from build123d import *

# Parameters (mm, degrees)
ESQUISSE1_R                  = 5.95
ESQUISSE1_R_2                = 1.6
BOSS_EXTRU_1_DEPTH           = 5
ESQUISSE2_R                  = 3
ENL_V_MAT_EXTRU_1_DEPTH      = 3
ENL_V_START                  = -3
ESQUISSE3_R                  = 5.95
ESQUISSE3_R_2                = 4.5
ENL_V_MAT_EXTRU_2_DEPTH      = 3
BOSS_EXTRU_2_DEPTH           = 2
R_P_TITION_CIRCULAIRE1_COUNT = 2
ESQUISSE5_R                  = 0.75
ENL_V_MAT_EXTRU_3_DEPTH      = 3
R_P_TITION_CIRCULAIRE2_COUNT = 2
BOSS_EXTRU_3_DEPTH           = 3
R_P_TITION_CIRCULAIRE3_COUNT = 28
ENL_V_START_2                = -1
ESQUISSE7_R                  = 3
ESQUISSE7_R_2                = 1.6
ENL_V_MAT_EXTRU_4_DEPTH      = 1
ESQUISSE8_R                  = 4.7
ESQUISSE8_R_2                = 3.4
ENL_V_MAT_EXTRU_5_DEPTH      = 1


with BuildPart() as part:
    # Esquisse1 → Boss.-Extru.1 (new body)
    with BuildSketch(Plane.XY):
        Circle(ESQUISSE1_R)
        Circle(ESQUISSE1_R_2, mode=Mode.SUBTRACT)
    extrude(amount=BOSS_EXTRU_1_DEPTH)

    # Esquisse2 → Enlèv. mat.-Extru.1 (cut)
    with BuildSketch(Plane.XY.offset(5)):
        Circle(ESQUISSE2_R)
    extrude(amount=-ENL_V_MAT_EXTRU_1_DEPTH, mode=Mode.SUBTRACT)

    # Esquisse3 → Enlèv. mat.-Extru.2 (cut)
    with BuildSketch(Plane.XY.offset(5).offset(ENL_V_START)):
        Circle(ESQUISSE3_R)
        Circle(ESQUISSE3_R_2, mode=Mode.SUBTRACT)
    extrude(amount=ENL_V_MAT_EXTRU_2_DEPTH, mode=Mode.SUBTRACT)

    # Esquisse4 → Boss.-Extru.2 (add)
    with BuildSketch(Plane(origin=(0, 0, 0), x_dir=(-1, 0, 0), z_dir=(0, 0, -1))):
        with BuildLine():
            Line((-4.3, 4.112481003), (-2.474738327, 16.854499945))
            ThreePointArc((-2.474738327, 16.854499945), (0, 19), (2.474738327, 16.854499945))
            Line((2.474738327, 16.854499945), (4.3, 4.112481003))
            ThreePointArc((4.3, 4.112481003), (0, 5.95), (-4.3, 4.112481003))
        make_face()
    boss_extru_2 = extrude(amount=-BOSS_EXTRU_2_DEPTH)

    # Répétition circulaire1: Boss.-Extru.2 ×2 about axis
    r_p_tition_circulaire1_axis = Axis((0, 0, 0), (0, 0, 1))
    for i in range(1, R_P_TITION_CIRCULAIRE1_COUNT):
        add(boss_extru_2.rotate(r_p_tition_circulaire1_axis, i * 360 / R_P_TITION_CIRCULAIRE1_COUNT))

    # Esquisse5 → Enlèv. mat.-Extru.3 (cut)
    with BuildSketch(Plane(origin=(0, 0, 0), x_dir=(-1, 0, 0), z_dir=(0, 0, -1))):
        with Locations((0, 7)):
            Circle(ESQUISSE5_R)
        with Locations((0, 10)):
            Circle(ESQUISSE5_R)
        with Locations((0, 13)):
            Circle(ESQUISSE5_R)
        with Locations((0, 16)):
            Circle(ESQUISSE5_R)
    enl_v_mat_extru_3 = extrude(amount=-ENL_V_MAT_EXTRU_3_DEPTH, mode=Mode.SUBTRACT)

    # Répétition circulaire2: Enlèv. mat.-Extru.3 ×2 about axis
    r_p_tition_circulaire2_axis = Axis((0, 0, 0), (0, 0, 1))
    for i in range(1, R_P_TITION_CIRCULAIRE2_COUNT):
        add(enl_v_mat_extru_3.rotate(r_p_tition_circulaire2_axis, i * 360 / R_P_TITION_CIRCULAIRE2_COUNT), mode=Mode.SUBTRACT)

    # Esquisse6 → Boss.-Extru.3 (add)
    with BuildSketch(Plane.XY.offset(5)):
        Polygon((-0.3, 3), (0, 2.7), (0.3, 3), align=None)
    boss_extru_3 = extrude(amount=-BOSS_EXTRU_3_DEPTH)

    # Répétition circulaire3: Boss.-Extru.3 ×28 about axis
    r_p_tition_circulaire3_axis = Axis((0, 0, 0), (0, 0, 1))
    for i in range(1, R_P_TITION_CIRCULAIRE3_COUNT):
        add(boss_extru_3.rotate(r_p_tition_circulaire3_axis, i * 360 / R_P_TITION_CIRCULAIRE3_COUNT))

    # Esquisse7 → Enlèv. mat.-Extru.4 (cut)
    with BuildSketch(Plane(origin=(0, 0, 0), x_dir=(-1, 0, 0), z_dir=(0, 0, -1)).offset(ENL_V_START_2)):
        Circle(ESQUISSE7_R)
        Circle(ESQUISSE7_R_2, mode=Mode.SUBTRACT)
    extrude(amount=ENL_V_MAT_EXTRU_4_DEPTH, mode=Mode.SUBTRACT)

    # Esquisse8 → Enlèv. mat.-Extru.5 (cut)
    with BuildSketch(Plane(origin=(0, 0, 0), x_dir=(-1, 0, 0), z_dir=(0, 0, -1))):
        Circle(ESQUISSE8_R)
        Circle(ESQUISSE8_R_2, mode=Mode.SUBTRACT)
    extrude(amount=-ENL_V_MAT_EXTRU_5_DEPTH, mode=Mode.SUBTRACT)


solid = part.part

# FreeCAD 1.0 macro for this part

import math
import FreeCAD as App
import Part
import Sketcher

doc = App.newDocument("Part")
body = doc.addObject("PartDesign::Body", "Body")

# Sketch on XY plane
sketch1 = body.newObject("Sketcher::SketchObject", "Sketch")
sketch1.AttachmentSupport = (doc.getObject("XY_Plane"), [""])
sketch1.MapMode = "FlatFace"
sketch1.addGeometry(Part.Circle(App.Vector(0, 0, 0), App.Vector(0, 0, 1), 5.95), False)
sketch1.addGeometry(Part.Circle(App.Vector(0, 0, 0), App.Vector(0, 0, 1), 1.6), False)
sketch1.addConstraint(Sketcher.Constraint("Coincident", 0, 3, -1, 1))
sketch1.addConstraint(Sketcher.Constraint("Coincident", 1, 3, -1, 1))
sketch1.addConstraint(Sketcher.Constraint("Diameter", 0, 11.9))
sketch1.addConstraint(Sketcher.Constraint("Diameter", 1, 3.2))
pad1 = body.newObject("PartDesign::Pad", "Pad")
pad1.Profile = sketch1
pad1.Length = 5

# Sketch on XY plane
sketch2 = body.newObject("Sketcher::SketchObject", "Sketch001")
sketch2.AttachmentSupport = (doc.getObject("XY_Plane"), [""])
sketch2.MapMode = "FlatFace"
sketch2.AttachmentOffset = App.Placement(App.Vector(0, 0, 5), App.Rotation())
sketch2.addGeometry(Part.Circle(App.Vector(0, 0, 0), App.Vector(0, 0, 1), 3), False)
sketch2.addConstraint(Sketcher.Constraint("Coincident", 0, 3, -1, 1))
sketch2.addConstraint(Sketcher.Constraint("Diameter", 0, 6.0))
pocket1 = body.newObject("PartDesign::Pocket", "Pocket")
pocket1.Profile = sketch2
pocket1.Length = 3

# Sketch on XY plane
sketch3 = body.newObject("Sketcher::SketchObject", "Sketch002")
sketch3.AttachmentSupport = (doc.getObject("XY_Plane"), [""])
sketch3.MapMode = "FlatFace"
sketch3.AttachmentOffset = App.Placement(App.Vector(0, 0, 2), App.Rotation())
sketch3.addGeometry(Part.Circle(App.Vector(0, 0, 0), App.Vector(0, 0, 1), 5.95), False)
sketch3.addGeometry(Part.Circle(App.Vector(0, 0, 0), App.Vector(0, 0, 1), 4.5), False)
sketch3.addConstraint(Sketcher.Constraint("Coincident", 0, 3, -1, 1))
sketch3.addConstraint(Sketcher.Constraint("Coincident", 1, 3, -1, 1))
sketch3.addConstraint(Sketcher.Constraint("Diameter", 1, 9.0))
sketch3.addConstraint(Sketcher.Constraint("Diameter", 0, 11.9))
pocket2 = body.newObject("PartDesign::Pocket", "Pocket001")
pocket2.Profile = sketch3
pocket2.Length = 3
pocket2.Reversed = True

# Sketch on XY plane
sketch4 = body.newObject("Sketcher::SketchObject", "Sketch003")
sketch4.AttachmentSupport = (doc.getObject("XY_Plane"), [""])
sketch4.MapMode = "FlatFace"
sketch4.addGeometry(Part.LineSegment(App.Vector(2.474738, 16.8545, 0), App.Vector(4.3, 4.112481, 0)), False)
sketch4.addGeometry(Part.ArcOfCircle(Part.Circle(App.Vector(0, 0, 0), App.Vector(0, 0, 1), 5.95), math.radians(43.723056), math.radians(136.276944)), False)
sketch4.addGeometry(Part.LineSegment(App.Vector(-4.3, 4.112481, 0), App.Vector(-2.474738, 16.8545, 0)), False)
sketch4.addGeometry(Part.ArcOfCircle(Part.Circle(App.Vector(0, 16.5, 0), App.Vector(0, 0, 1), 2.5), math.radians(8.152017), math.radians(171.847983)), False)
sketch4.addConstraint(Sketcher.Constraint("Coincident", 0, 2, 1, 1))
sketch4.addConstraint(Sketcher.Constraint("Coincident", 1, 2, 2, 1))
sketch4.addConstraint(Sketcher.Constraint("Tangent", 2, 2, 3, 2))
sketch4.addConstraint(Sketcher.Constraint("Tangent", 3, 1, 0, 1))
sketch4.addConstraint(Sketcher.Constraint("Coincident", 1, 3, -1, 1))
sketch4.addConstraint(Sketcher.Constraint("Symmetric", 2, 2, 3, 1, -2))
sketch4.addConstraint(Sketcher.Constraint("Radius", 3, 2.5))
sketch4.addConstraint(Sketcher.Constraint("Radius", 1, 5.95))
sketch4.addConstraint(Sketcher.Constraint("DistanceY", -1, 1, 3, 3, 16.5))
sketch4.addConstraint(Sketcher.Constraint("DistanceX", -1, 1, 0, 2, 4.3))
pad2 = body.newObject("PartDesign::Pad", "Pad001")
pad2.Profile = sketch4
pad2.Length = 2
doc.recompute()

polarpattern = body.newObject("PartDesign::PolarPattern", "PolarPattern")
polarpattern.Originals = [pad2]
polarpattern.Axis = (doc.getObject("Z_Axis"), [""])
polarpattern.Angle = 360
polarpattern.Occurrences = 2
body.Tip = polarpattern

# Sketch on XY plane
sketch5 = body.newObject("Sketcher::SketchObject", "Sketch004")
sketch5.AttachmentSupport = (doc.getObject("XY_Plane"), [""])
sketch5.MapMode = "FlatFace"
sketch5.addGeometry(Part.Circle(App.Vector(0, 7, 0), App.Vector(0, 0, 1), 0.75), False)
sketch5.addGeometry(Part.Circle(App.Vector(0, 10, 0), App.Vector(0, 0, 1), 0.75), False)
sketch5.addGeometry(Part.Circle(App.Vector(0, 13, 0), App.Vector(0, 0, 1), 0.75), False)
sketch5.addGeometry(Part.Circle(App.Vector(0, 16, 0), App.Vector(0, 0, 1), 0.75), False)
sketch5.addConstraint(Sketcher.Constraint("Equal", 0, 1))
sketch5.addConstraint(Sketcher.Constraint("Equal", 1, 2))
sketch5.addConstraint(Sketcher.Constraint("Equal", 2, 3))
sketch5.addConstraint(Sketcher.Constraint("PointOnObject", 0, 3, -2))
sketch5.addConstraint(Sketcher.Constraint("PointOnObject", 1, 3, -2))
sketch5.addConstraint(Sketcher.Constraint("PointOnObject", 2, 3, -2))
sketch5.addConstraint(Sketcher.Constraint("PointOnObject", 3, 3, -2))
sketch5.addConstraint(Sketcher.Constraint("Diameter", 0, 1.5))
sketch5.addConstraint(Sketcher.Constraint("DistanceY", -1, 1, 0, 3, 7.0))
sketch5.addConstraint(Sketcher.Constraint("DistanceY", -1, 1, 1, 3, 10.0))
sketch5.addConstraint(Sketcher.Constraint("DistanceY", -1, 1, 2, 3, 13.0))
sketch5.addConstraint(Sketcher.Constraint("DistanceY", -1, 1, 3, 3, 16.0))
pocket3 = body.newObject("PartDesign::Pocket", "Pocket002")
pocket3.Profile = sketch5
pocket3.Length = 3
pocket3.Reversed = True
doc.recompute()

polarpattern2 = body.newObject("PartDesign::PolarPattern", "PolarPattern001")
polarpattern2.Originals = [pocket3]
polarpattern2.Axis = (doc.getObject("Z_Axis"), [""])
polarpattern2.Angle = 360
polarpattern2.Occurrences = 2
body.Tip = polarpattern2

# Sketch on XY plane
sketch6 = body.newObject("Sketcher::SketchObject", "Sketch005")
sketch6.AttachmentSupport = (doc.getObject("XY_Plane"), [""])
sketch6.MapMode = "FlatFace"
sketch6.AttachmentOffset = App.Placement(App.Vector(0, 0, 5), App.Rotation())
sketch6.addGeometry(Part.LineSegment(App.Vector(-0.3, 3, 0), App.Vector(0, 2.7, 0)), False)
sketch6.addGeometry(Part.LineSegment(App.Vector(0, 2.7, 0), App.Vector(0.3, 3, 0)), False)
sketch6.addGeometry(Part.LineSegment(App.Vector(0.3, 3, 0), App.Vector(-0.3, 3, 0)), False)
sketch6.addConstraint(Sketcher.Constraint("Coincident", 0, 2, 1, 1))
sketch6.addConstraint(Sketcher.Constraint("Coincident", 1, 2, 2, 1))
sketch6.addConstraint(Sketcher.Constraint("Coincident", 2, 2, 0, 1))
sketch6.addConstraint(Sketcher.Constraint("Horizontal", 2))
sketch6.addConstraint(Sketcher.Constraint("PointOnObject", 0, 2, -2))
sketch6.addConstraint(Sketcher.Constraint("Perpendicular", 0, 1))
sketch6.addConstraint(Sketcher.Constraint("Equal", 0, 1))
sketch6.addConstraint(Sketcher.Constraint("DistanceX", 2, 2, 2, 1, 0.6))
sketch6.addConstraint(Sketcher.Constraint("DistanceY", -1, 1, 1, 2, 3.0))
pad3 = body.newObject("PartDesign::Pad", "Pad002")
pad3.Profile = sketch6
pad3.Length = 3
pad3.Reversed = True
doc.recompute()

polarpattern3 = body.newObject("PartDesign::PolarPattern", "PolarPattern002")
polarpattern3.Originals = [pad3]
polarpattern3.Axis = (doc.getObject("Z_Axis"), [""])
polarpattern3.Angle = 360
polarpattern3.Occurrences = 28
body.Tip = polarpattern3

# Sketch on XY plane
sketch7 = body.newObject("Sketcher::SketchObject", "Sketch006")
sketch7.AttachmentSupport = (doc.getObject("XY_Plane"), [""])
sketch7.MapMode = "FlatFace"
sketch7.AttachmentOffset = App.Placement(App.Vector(0, 0, 1), App.Rotation())
sketch7.addGeometry(Part.Circle(App.Vector(0, 0, 0), App.Vector(0, 0, 1), 3), False)
sketch7.addGeometry(Part.Circle(App.Vector(0, 0, 0), App.Vector(0, 0, 1), 1.6), False)
sketch7.addConstraint(Sketcher.Constraint("Coincident", 0, 3, -1, 1))
sketch7.addConstraint(Sketcher.Constraint("Coincident", 1, 3, -1, 1))
sketch7.addConstraint(Sketcher.Constraint("Diameter", 0, 6.0))
sketch7.addConstraint(Sketcher.Constraint("Diameter", 1, 3.2))
pocket4 = body.newObject("PartDesign::Pocket", "Pocket003")
pocket4.Profile = sketch7
pocket4.Length = 1

# Sketch on XY plane
sketch8 = body.newObject("Sketcher::SketchObject", "Sketch007")
sketch8.AttachmentSupport = (doc.getObject("XY_Plane"), [""])
sketch8.MapMode = "FlatFace"
sketch8.addGeometry(Part.Circle(App.Vector(0, 0, 0), App.Vector(0, 0, 1), 4.7), False)
sketch8.addGeometry(Part.Circle(App.Vector(0, 0, 0), App.Vector(0, 0, 1), 3.4), False)
sketch8.addConstraint(Sketcher.Constraint("Coincident", 0, 3, -1, 1))
sketch8.addConstraint(Sketcher.Constraint("Coincident", 1, 3, -1, 1))
sketch8.addConstraint(Sketcher.Constraint("Diameter", 0, 9.4))
sketch8.addConstraint(Sketcher.Constraint("Diameter", 1, 6.8))
pocket5 = body.newObject("PartDesign::Pocket", "Pocket004")
pocket5.Profile = sketch8
pocket5.Length = 1
pocket5.Reversed = True

doc.recompute()
